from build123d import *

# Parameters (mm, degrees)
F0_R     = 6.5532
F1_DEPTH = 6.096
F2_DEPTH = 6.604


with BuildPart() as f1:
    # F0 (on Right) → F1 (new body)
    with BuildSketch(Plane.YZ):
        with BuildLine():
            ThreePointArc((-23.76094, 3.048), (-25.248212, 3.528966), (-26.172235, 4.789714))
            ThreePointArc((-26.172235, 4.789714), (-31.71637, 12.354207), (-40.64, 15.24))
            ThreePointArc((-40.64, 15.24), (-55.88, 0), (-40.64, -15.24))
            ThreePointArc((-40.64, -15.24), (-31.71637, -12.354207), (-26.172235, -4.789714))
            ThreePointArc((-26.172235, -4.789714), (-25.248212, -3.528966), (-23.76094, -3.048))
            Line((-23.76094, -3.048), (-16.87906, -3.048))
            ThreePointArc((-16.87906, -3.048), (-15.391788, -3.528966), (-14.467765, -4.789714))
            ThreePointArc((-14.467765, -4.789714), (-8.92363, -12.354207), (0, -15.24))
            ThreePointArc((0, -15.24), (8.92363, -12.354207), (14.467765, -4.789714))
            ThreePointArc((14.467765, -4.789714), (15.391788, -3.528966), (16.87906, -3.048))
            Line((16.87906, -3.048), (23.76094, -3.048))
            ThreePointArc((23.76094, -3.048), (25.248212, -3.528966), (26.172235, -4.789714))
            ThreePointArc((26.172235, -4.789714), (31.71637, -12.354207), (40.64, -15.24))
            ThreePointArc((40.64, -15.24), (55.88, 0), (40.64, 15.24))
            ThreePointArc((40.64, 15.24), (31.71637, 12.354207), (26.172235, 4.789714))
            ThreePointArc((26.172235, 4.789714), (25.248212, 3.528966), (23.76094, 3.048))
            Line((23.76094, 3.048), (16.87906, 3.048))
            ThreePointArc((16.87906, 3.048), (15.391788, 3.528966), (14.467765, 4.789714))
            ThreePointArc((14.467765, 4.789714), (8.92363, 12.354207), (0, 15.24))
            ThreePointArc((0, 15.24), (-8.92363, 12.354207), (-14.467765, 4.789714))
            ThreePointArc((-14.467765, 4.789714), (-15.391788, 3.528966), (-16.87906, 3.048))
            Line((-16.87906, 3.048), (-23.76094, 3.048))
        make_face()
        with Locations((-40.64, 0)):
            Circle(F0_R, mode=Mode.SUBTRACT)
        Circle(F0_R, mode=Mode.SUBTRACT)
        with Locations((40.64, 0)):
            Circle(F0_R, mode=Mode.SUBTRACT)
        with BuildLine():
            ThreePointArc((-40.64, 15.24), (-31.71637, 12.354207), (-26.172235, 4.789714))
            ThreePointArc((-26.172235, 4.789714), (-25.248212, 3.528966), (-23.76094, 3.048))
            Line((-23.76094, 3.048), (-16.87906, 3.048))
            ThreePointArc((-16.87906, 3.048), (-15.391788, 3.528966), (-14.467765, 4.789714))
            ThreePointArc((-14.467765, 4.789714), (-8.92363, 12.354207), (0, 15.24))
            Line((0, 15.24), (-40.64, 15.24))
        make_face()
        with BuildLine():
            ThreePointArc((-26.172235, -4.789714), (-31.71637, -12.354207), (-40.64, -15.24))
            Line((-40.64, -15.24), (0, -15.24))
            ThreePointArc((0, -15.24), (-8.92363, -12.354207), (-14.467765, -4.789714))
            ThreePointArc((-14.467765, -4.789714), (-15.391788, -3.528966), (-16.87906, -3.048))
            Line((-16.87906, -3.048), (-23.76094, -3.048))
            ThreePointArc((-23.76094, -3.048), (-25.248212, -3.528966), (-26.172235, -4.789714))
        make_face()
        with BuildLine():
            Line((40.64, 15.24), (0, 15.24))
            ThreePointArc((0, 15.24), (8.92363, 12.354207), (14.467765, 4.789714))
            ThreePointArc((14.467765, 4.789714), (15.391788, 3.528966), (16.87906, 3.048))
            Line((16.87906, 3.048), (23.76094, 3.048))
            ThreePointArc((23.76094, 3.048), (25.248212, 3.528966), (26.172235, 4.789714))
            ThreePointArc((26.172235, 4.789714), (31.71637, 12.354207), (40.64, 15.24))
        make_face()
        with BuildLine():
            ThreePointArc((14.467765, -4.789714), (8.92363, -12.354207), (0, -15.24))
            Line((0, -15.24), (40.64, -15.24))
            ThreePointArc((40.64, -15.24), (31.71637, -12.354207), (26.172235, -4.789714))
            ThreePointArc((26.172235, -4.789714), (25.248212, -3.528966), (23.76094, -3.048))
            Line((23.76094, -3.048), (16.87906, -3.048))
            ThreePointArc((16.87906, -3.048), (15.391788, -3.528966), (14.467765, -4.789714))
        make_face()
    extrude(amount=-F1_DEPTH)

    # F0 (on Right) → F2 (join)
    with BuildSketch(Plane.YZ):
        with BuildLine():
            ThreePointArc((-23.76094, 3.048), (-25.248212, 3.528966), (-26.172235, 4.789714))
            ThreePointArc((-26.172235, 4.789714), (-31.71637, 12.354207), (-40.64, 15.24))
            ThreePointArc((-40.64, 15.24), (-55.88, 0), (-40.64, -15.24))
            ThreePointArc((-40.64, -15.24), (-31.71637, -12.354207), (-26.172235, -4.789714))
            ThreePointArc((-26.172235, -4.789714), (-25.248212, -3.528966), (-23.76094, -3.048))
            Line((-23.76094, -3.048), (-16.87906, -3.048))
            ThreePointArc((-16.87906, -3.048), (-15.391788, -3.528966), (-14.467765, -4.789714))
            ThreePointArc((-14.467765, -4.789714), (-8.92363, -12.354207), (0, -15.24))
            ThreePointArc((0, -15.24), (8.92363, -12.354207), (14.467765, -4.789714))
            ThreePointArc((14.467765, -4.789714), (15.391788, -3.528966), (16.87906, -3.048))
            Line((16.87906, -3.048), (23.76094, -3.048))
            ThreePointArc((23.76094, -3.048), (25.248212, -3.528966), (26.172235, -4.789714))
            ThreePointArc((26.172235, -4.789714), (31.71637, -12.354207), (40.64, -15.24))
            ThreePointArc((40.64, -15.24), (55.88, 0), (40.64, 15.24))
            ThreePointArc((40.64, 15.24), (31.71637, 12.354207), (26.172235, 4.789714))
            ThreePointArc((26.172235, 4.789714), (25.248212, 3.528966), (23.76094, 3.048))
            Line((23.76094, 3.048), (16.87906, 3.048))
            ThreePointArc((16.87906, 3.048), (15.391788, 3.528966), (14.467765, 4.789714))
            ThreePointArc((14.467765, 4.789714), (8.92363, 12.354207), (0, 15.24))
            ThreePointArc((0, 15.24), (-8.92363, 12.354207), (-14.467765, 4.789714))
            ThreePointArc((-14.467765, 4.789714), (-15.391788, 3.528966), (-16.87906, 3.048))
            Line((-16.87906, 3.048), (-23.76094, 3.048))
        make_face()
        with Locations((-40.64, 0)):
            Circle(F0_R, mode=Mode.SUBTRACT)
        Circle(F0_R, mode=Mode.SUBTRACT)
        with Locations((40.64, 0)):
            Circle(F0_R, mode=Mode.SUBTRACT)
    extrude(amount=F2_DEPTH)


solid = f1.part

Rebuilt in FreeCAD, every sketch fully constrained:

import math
import FreeCAD as App
import Part
import Sketcher
Q = App.Units.Quantity

doc = App.newDocument("Part")
body = doc.addObject("PartDesign::Body", "Body")

# Sketch on YZ plane
sketch1 = body.newObject("Sketcher::SketchObject", "Sketch")
sketch1.AttachmentSupport = (doc.getObject("YZ_Plane"), [""])
sketch1.MapMode = "FlatFace"
sketch1.addGeometry([
    Part.ArcOfCircle(Part.Circle(App.Vector(-41, 0, 0), App.Vector(0, 0, 1), 15), math.radians(90), math.radians(270)),  # 0
    Part.LineSegment(App.Vector(-41, -15, 0), App.Vector(41, -15, 0)),  # 1
    Part.ArcOfCircle(Part.Circle(App.Vector(41, 0, 0), App.Vector(0, 0, 1), 15), math.radians(-90), math.radians(90)),  # 2
    Part.LineSegment(App.Vector(41, 15, 0), App.Vector(-41, 15, 0)),  # 3
    Part.Circle(App.Vector(-41, 0, 0), App.Vector(0, 0, 1), 7),  # 4
    Part.Circle(App.Vector(0, 0, 0), App.Vector(0, 0, 1), 7),  # 5
    Part.Circle(App.Vector(41, 0, 0), App.Vector(0, 0, 1), 7),  # 6
], False)
sketch1.addConstraint([
    Sketcher.Constraint("Tangent", 0, 2, 1, 1),
    Sketcher.Constraint("Tangent", 1, 2, 2, 1),
    Sketcher.Constraint("Tangent", 2, 2, 3, 1),
    Sketcher.Constraint("Tangent", 3, 2, 0, 1),
    Sketcher.Constraint("Horizontal", 1),
    Sketcher.Constraint("Horizontal", 3),
    Sketcher.Constraint("Coincident", 5, 3, -1, 1),
    Sketcher.Constraint("Coincident", 4, 3, 0, 3),
    Sketcher.Constraint("Coincident", 6, 3, 2, 3),
    Sketcher.Constraint("Equal", 4, 5),
    Sketcher.Constraint("Equal", 5, 6),
    Sketcher.Constraint("Symmetric", 0, 3, 2, 3, -1, 1),
    Sketcher.Constraint("Radius", 0, Q("0.6 in")),
    Sketcher.Constraint("Diameter", 4, Q("0.516 in")),
    Sketcher.Constraint("DistanceX", 1, 1, 1, 2, Q("3.2 in")),
])
pad1 = body.newObject("PartDesign::Pad", "Pad")
pad1.Profile = sketch1
pad1.Length = Q("0.24 in")
pad1.Reversed = True

# Sketch on YZ plane
sketch2 = body.newObject("Sketcher::SketchObject", "Sketch001")
sketch2.AttachmentSupport = (doc.getObject("YZ_Plane"), [""])
sketch2.MapMode = "FlatFace"
sketch2.addGeometry([
    Part.ArcOfCircle(Part.Circle(App.Vector(-23.8, 5.6, 0), App.Vector(0, 0, 1), 2.5), math.radians(-162), math.radians(-90)),  # 0
    Part.ArcOfCircle(Part.Circle(App.Vector(-40.6, 0, 0), App.Vector(0, 0, 1), 15.2), math.radians(18), math.radians(90)),  # 1
    Part.ArcOfCircle(Part.Circle(App.Vector(-40.6, 0, 0), App.Vector(0, 0, 1), 15.2), math.radians(90), math.radians(270)),  # 2
    Part.ArcOfCircle(Part.Circle(App.Vector(-40.6, 0, 0), App.Vector(0, 0, 1), 15.2), math.radians(-90), math.radians(-18)),  # 3
    Part.ArcOfCircle(Part.Circle(App.Vector(-23.8, -5.6, 0), App.Vector(0, 0, 1), 2.5), math.radians(90), math.radians(162)),  # 4
    Part.LineSegment(App.Vector(-23.8, -3, 0), App.Vector(-16.9, -3, 0)),  # 5
    Part.ArcOfCircle(Part.Circle(App.Vector(-16.9, -5.6, 0), App.Vector(0, 0, 1), 2.5), math.radians(18), math.radians(90)),  # 6
    Part.ArcOfCircle(Part.Circle(App.Vector(0, 0, 0), App.Vector(0, 0, 1), 15.2), math.radians(-162), math.radians(-90)),  # 7
    Part.ArcOfCircle(Part.Circle(App.Vector(0, 0, 0), App.Vector(0, 0, 1), 15.2), math.radians(-90), math.radians(-18)),  # 8
    Part.ArcOfCircle(Part.Circle(App.Vector(16.9, -5.6, 0), App.Vector(0, 0, 1), 2.5), math.radians(90), math.radians(162)),  # 9
    Part.LineSegment(App.Vector(16.9, -3, 0), App.Vector(23.8, -3, 0)),  # 10
    Part.ArcOfCircle(Part.Circle(App.Vector(23.8, -5.6, 0), App.Vector(0, 0, 1), 2.5), math.radians(18), math.radians(90)),  # 11
    Part.ArcOfCircle(Part.Circle(App.Vector(40.6, 0, 0), App.Vector(0, 0, 1), 15.2), math.radians(-162), math.radians(-90)),  # 12
    Part.ArcOfCircle(Part.Circle(App.Vector(40.6, 0, 0), App.Vector(0, 0, 1), 15.2), math.radians(-90), math.radians(90)),  # 13
    Part.ArcOfCircle(Part.Circle(App.Vector(40.6, 0, 0), App.Vector(0, 0, 1), 15.2), math.radians(90), math.radians(162)),  # 14
    Part.ArcOfCircle(Part.Circle(App.Vector(23.8, 5.6, 0), App.Vector(0, 0, 1), 2.5), math.radians(-90), math.radians(-18)),  # 15
    Part.LineSegment(App.Vector(23.8, 3, 0), App.Vector(16.9, 3, 0)),  # 16
    Part.ArcOfCircle(Part.Circle(App.Vector(16.9, 5.6, 0), App.Vector(0, 0, 1), 2.5), math.radians(-162), math.radians(-90)),  # 17
    Part.ArcOfCircle(Part.Circle(App.Vector(0, 0, 0), App.Vector(0, 0, 1), 15.2), math.radians(18), math.radians(90)),  # 18
    Part.ArcOfCircle(Part.Circle(App.Vector(0, 0, 0), App.Vector(0, 0, 1), 15.2), math.radians(90), math.radians(162)),  # 19
    Part.ArcOfCircle(Part.Circle(App.Vector(-16.9, 5.6, 0), App.Vector(0, 0, 1), 2.5), math.radians(-90), math.radians(-18)),  # 20
    Part.LineSegment(App.Vector(-16.9, 3, 0), App.Vector(-23.8, 3, 0)),  # 21
    Part.Circle(App.Vector(-40.6, 0, 0), App.Vector(0, 0, 1), 6.6),  # 22
    Part.Circle(App.Vector(0, 0, 0), App.Vector(0, 0, 1), 6.6),  # 23
    Part.Circle(App.Vector(40.6, 0, 0), App.Vector(0, 0, 1), 6.6),  # 24
], False)
sketch2.addConstraint([
    Sketcher.Constraint("Tangent", 0, 1, 1, 1),
    Sketcher.Constraint("Tangent", 1, 2, 2, 1),
    Sketcher.Constraint("Tangent", 2, 2, 3, 1),
    Sketcher.Constraint("Tangent", 3, 2, 4, 2),
    Sketcher.Constraint("Tangent", 4, 1, 5, 1),
    Sketcher.Constraint("Tangent", 5, 2, 6, 2),
    Sketcher.Constraint("Tangent", 6, 1, 7, 1),
    Sketcher.Constraint("Tangent", 7, 2, 8, 1),
    Sketcher.Constraint("Tangent", 8, 2, 9, 2),
    Sketcher.Constraint("Tangent", 9, 1, 10, 1),
    Sketcher.Constraint("Tangent", 10, 2, 11, 2),
    Sketcher.Constraint("Tangent", 11, 1, 12, 1),
    Sketcher.Constraint("Tangent", 12, 2, 13, 1),
    Sketcher.Constraint("Tangent", 13, 2, 14, 1),
    Sketcher.Constraint("Tangent", 14, 2, 15, 2),
    Sketcher.Constraint("Tangent", 15, 1, 16, 1),
    Sketcher.Constraint("Tangent", 16, 2, 17, 2),
    Sketcher.Constraint("Tangent", 17, 1, 18, 1),
    Sketcher.Constraint("Tangent", 18, 2, 19, 1),
    Sketcher.Constraint("Tangent", 19, 2, 20, 2),
    Sketcher.Constraint("Tangent", 20, 1, 21, 1),
    Sketcher.Constraint("Tangent", 21, 2, 0, 2),
    Sketcher.Constraint("Horizontal", 5),
    Sketcher.Constraint("Horizontal", 10),
    Sketcher.Constraint("Horizontal", 16),
    Sketcher.Constraint("Horizontal", 21),
    Sketcher.Constraint("Coincident", 7, 3, -1, 1),
    Sketcher.Constraint("Coincident", 18, 3, -1, 1),
    Sketcher.Constraint("Coincident", 23, 3, -1, 1),
    Sketcher.Constraint("Coincident", 22, 3, 1, 3),
    Sketcher.Constraint("Coincident", 24, 3, 12, 3),
    Sketcher.Constraint("Equal", 1, 2),
    Sketcher.Constraint("Equal", 2, 3),
    Sketcher.Constraint("Equal", 0, 4),
    Sketcher.Constraint("Equal", 4, 6),
    Sketcher.Constraint("Equal", 3, 7),
    Sketcher.Constraint("Equal", 7, 8),
    Sketcher.Constraint("Equal", 6, 9),
    Sketcher.Constraint("Equal", 9, 11),
    Sketcher.Constraint("Equal", 8, 12),
    Sketcher.Constraint("Equal", 12, 13),
    Sketcher.Constraint("Equal", 13, 14),
    Sketcher.Constraint("Equal", 11, 15),
    Sketcher.Constraint("Equal", 15, 17),
    Sketcher.Constraint("Equal", 14, 18),
    Sketcher.Constraint("Equal", 18, 19),
    Sketcher.Constraint("Equal", 17, 20),
    Sketcher.Constraint("Equal", 22, 23),
    Sketcher.Constraint("Equal", 23, 24),
    Sketcher.Constraint("Symmetric", 0, 3, 11, 3, -1, 1),
    Sketcher.Constraint("Symmetric", 4, 3, 15, 3, -1, 1),
    Sketcher.Constraint("Symmetric", 4, 3, 11, 3, -2),
    Sketcher.Constraint("PointOnObject", 7, 2, -2),
    Sketcher.Constraint("PointOnObject", 18, 2, -2),
    Sketcher.Constraint("Vertical", 22, 3, 1, 2),
    Sketcher.Constraint("Vertical", 1, 2, 2, 2),
    Sketcher.Constraint("Vertical", 24, 3, 12, 2),
    Sketcher.Constraint("Vertical", 12, 2, 13, 2),
    Sketcher.Constraint("Radius", 0, Q("0.1000001 in")),
    Sketcher.Constraint("Radius", 1, Q("0.5999999 in")),
    Sketcher.Constraint("Diameter", 22, Q("0.516 in")),
    Sketcher.Constraint("DistanceX", 1, 3, -1, 1, Q("1.6 in")),
    Sketcher.Constraint("DistanceY", -1, 1, 0, 3, Q("0.2200001 in")),
])
pad2 = body.newObject("PartDesign::Pad", "Pad001")
pad2.Profile = sketch2
pad2.Length = Q("0.26 in")

doc.recompute()
